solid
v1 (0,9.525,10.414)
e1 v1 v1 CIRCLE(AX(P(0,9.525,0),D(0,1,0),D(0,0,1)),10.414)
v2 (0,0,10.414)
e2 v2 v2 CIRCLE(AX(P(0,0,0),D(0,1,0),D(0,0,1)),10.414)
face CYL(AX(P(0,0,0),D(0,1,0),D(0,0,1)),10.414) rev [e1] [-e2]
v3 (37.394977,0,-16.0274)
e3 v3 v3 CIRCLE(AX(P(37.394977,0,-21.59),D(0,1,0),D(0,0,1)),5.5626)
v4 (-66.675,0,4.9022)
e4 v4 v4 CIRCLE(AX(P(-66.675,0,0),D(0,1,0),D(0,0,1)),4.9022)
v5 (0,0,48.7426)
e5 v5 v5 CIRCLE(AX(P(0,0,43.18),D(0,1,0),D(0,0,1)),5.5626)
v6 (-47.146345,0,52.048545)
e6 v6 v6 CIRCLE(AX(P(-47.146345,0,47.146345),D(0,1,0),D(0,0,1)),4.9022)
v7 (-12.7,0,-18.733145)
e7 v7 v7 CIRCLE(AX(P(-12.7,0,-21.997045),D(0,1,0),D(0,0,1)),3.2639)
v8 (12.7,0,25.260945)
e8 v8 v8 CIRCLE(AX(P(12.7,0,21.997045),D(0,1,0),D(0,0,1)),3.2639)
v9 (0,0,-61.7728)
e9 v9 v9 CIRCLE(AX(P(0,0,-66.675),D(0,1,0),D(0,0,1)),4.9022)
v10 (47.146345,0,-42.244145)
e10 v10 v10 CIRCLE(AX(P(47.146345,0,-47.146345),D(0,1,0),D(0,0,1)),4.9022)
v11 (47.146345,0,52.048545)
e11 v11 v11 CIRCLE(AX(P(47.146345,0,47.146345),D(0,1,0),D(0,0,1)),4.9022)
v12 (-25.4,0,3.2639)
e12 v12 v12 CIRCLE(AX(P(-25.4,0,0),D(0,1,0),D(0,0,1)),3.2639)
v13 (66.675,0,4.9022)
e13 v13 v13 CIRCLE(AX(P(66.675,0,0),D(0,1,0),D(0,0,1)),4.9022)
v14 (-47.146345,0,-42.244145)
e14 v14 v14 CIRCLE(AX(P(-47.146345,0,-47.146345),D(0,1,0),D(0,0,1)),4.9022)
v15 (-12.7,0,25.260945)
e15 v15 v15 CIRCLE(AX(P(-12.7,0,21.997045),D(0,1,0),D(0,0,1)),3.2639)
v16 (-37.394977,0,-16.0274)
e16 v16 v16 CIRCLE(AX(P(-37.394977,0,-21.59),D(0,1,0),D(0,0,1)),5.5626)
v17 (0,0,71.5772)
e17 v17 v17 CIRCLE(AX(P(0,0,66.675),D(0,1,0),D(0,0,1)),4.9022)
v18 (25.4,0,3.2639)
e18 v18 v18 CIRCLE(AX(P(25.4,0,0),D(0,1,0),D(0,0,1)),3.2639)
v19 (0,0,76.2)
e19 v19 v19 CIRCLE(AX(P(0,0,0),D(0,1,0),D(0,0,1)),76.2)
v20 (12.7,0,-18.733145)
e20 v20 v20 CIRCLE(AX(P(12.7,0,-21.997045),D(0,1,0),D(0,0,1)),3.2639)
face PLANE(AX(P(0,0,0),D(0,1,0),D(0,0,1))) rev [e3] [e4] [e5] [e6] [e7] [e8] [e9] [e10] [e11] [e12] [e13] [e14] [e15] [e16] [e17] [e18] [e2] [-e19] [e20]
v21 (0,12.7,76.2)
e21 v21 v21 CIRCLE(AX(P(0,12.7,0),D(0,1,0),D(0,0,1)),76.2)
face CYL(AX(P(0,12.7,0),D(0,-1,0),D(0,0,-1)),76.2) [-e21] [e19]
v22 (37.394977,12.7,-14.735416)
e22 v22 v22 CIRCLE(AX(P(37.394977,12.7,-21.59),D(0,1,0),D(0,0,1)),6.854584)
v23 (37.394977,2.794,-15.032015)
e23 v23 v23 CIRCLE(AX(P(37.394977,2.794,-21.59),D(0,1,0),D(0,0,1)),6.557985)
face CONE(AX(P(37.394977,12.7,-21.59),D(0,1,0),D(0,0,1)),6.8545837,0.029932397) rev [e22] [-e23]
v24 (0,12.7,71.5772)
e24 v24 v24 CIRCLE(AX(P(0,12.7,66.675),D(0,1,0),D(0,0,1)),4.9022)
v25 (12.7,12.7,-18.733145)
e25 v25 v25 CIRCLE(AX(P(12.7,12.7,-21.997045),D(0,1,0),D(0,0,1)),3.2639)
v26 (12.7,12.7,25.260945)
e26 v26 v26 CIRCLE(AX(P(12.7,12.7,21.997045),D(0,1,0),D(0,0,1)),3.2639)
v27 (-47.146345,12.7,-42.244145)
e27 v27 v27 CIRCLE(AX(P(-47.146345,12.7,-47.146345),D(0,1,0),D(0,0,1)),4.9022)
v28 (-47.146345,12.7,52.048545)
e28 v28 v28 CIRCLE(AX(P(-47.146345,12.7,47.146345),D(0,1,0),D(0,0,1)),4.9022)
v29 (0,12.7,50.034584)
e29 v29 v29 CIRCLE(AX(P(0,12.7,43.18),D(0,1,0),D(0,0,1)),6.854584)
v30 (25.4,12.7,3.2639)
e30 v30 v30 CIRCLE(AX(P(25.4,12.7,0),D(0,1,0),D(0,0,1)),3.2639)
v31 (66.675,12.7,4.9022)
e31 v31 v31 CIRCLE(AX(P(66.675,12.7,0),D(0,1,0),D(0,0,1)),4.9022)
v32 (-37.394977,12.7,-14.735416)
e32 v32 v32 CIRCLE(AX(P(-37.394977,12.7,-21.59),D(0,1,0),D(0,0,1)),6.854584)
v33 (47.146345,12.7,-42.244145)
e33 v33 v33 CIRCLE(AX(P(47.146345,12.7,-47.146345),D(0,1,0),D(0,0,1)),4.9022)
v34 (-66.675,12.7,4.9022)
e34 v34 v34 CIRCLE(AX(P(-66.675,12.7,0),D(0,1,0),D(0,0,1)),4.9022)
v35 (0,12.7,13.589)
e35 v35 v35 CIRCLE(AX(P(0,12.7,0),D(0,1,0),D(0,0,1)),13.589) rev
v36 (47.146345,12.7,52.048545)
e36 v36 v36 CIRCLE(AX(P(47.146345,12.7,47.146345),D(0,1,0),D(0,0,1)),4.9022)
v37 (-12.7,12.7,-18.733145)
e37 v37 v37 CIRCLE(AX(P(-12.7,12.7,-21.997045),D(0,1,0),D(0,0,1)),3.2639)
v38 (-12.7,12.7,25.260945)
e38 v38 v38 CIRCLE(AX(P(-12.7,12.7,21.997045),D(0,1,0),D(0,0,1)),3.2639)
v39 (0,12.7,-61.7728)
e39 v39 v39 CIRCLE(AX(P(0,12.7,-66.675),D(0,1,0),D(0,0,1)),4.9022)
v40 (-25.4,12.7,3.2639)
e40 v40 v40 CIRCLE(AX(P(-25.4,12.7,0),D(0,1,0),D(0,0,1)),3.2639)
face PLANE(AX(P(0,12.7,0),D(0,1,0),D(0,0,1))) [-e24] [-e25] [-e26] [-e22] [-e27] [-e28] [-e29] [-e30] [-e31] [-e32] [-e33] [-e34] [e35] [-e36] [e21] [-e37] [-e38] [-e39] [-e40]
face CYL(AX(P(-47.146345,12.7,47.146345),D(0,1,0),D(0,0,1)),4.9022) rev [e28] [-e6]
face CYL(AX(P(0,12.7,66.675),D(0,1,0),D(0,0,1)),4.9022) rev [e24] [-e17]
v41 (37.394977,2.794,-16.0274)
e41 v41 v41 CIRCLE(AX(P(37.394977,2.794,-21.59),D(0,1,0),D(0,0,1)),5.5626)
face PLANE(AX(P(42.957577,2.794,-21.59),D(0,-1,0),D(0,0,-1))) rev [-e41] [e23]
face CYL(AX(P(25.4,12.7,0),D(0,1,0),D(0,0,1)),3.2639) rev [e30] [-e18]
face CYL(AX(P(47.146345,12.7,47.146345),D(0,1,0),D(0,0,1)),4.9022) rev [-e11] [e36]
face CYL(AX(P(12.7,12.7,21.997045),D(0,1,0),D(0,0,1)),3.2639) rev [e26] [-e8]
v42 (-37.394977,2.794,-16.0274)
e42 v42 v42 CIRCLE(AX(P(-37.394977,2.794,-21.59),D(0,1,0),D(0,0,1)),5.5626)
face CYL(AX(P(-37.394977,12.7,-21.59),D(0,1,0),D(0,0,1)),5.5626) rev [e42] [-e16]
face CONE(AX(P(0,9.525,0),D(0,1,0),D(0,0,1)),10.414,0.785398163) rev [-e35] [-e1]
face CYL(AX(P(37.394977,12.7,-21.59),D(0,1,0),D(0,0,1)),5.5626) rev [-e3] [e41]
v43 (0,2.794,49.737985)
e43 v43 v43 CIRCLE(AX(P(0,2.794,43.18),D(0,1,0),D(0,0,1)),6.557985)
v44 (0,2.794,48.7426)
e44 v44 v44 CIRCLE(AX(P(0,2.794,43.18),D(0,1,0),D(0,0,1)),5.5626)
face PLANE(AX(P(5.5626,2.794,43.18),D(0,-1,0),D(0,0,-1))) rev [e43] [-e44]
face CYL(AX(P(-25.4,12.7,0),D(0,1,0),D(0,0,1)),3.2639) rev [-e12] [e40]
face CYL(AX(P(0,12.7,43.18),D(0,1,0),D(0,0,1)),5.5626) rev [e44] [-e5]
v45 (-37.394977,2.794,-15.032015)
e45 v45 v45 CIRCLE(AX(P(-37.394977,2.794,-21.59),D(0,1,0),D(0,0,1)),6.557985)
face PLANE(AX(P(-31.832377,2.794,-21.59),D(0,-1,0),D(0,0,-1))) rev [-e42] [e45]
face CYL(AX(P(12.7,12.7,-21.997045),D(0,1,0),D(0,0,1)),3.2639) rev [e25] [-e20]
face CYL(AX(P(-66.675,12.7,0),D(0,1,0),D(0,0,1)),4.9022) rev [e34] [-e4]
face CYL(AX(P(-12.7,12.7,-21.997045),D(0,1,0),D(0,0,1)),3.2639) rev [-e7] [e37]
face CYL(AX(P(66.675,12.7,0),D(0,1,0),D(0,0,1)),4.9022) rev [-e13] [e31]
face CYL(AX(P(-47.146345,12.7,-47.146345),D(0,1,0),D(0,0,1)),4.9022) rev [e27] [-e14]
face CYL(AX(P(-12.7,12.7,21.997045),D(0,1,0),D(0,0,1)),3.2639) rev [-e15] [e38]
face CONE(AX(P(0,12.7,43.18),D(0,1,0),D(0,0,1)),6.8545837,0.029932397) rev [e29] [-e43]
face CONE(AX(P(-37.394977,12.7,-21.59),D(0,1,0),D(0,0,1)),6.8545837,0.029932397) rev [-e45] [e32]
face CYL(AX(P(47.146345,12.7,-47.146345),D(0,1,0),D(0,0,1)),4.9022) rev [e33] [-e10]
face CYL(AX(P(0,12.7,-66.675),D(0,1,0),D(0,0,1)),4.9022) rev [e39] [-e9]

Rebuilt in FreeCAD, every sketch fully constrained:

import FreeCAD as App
import Part
import Sketcher
from FreeCAD import Vector
Q = App.Units.Quantity


def edges_at(feature, points):
    """Names of the edges that pass closest to the given points."""
    edges = feature.Shape.Edges
    near = lambda p: min(range(len(edges)), key=lambda i: edges[i].distToShape(Part.Vertex(*p))[0])
    return sorted({f"Edge{near(p) + 1}" for p in points})

doc = App.newDocument("Part")
body = doc.addObject("PartDesign::Body", "Body")

# Sketch on XZ plane
sketch1 = body.newObject("Sketcher::SketchObject", "Sketch")
sketch1.AttachmentSupport = (doc.getObject("XZ_Plane"), [""])
sketch1.MapMode = "FlatFace"
sketch1.addGeometry(Part.Circle(Vector(0, 0, 0), Vector(0, 0, 1), 76), False)
sketch1.addConstraint(Sketcher.Constraint("Coincident", 0, 3, -1, 1))
sketch1.addConstraint(Sketcher.Constraint("Diameter", 0, Q("6 in")))
pad1 = body.newObject("PartDesign::Pad", "Pad")
pad1.Profile = sketch1
pad1.Length = Q("0.5 in")
pad1.Reversed = True

# Sketch on XZ plane
sketch2 = body.newObject("Sketcher::SketchObject", "Sketch001")
sketch2.AttachmentSupport = (doc.getObject("XZ_Plane"), [""])
sketch2.MapMode = "FlatFace"
sketch2.AttachmentOffset = App.Placement(Vector(0, 0, -0.5 * 25.4), App.Rotation())
sketch2.addGeometry(Part.Circle(Vector(47.1, 47.1, 0), Vector(0, 0, 1), 4.9), False)
sketch2.addGeometry(Part.Circle(Vector(66.7, 0, 0), Vector(0, 0, 1), 4.9), False)
sketch2.addGeometry(Part.Circle(Vector(47.1, -47.1, 0), Vector(0, 0, 1), 4.9), False)
sketch2.addGeometry(Part.Circle(Vector(0, -66.7, 0), Vector(0, 0, 1), 4.9), False)
sketch2.addGeometry(Part.Circle(Vector(-47.1, -47.1, 0), Vector(0, 0, 1), 4.9), False)
sketch2.addGeometry(Part.Circle(Vector(-66.7, 0, 0), Vector(0, 0, 1), 4.9), False)
sketch2.addGeometry(Part.Circle(Vector(-47.1, 47.1, 0), Vector(0, 0, 1), 4.9), False)
sketch2.addGeometry(Part.Circle(Vector(0, 66.7, 0), Vector(0, 0, 1), 4.9), False)
sketch2.addConstraint(Sketcher.Constraint("Equal", 0, 1))
sketch2.addConstraint(Sketcher.Constraint("Equal", 1, 2))
sketch2.addConstraint(Sketcher.Constraint("Equal", 2, 3))
sketch2.addConstraint(Sketcher.Constraint("Equal", 3, 4))
sketch2.addConstraint(Sketcher.Constraint("Equal", 4, 5))
sketch2.addConstraint(Sketcher.Constraint("Equal", 5, 6))
sketch2.addConstraint(Sketcher.Constraint("Equal", 6, 7))
sketch2.addConstraint(Sketcher.Constraint("Symmetric", 0, 3, 4, 3, -1, 1))
sketch2.addConstraint(Sketcher.Constraint("Symmetric", 1, 3, 5, 3, -1, 1))
sketch2.addConstraint(Sketcher.Constraint("Symmetric", 2, 3, 6, 3, -1, 1))
sketch2.addConstraint(Sketcher.Constraint("Symmetric", 3, 3, 7, 3, -1, 1))
sketch2.addConstraint(Sketcher.Constraint("Symmetric", 2, 3, 4, 3, -2))
sketch2.addConstraint(Sketcher.Constraint("PointOnObject", 1, 3, -1))
sketch2.addConstraint(Sketcher.Constraint("PointOnObject", 3, 3, -2))
sketch2.addConstraint(Sketcher.Constraint("Diameter", 0, Q("0.386 in")))
sketch2.addConstraint(Sketcher.Constraint("DistanceX", 5, 3, 1, 3, Q("5.25 in")))
sketch2.addConstraint(Sketcher.Constraint("DistanceY", 3, 3, -1, 1, Q("2.625 in")))
sketch2.addConstraint(Sketcher.Constraint("DistanceY", 2, 3, 0, 3, Q("94.292689 mm")))
sketch2.addConstraint(Sketcher.Constraint("DistanceX", 4, 3, 2, 3, Q("94.292689 mm")))
doc.recompute()
hole = body.newObject("PartDesign::Hole", "Hole")
hole.Profile = sketch2
hole.ThreadType = "None"
hole.Diameter = Q("0.386 in")
hole.DepthType = "ThroughAll"
hole.Reversed = True

# Sketch on XZ plane
sketch3 = body.newObject("Sketcher::SketchObject", "Sketch002")
sketch3.AttachmentSupport = (doc.getObject("XZ_Plane"), [""])
sketch3.MapMode = "FlatFace"
sketch3.AttachmentOffset = App.Placement(Vector(0, 0, -0.5 * 25.4), App.Rotation())
sketch3.addGeometry(Part.Circle(Vector(12.7, 22, 0), Vector(0, 0, 1), 3.3), False)
sketch3.addGeometry(Part.Circle(Vector(25.4, 0, 0), Vector(0, 0, 1), 3.3), False)
sketch3.addGeometry(Part.Circle(Vector(12.7, -22, 0), Vector(0, 0, 1), 3.3), False)
sketch3.addGeometry(Part.Circle(Vector(-12.7, -22, 0), Vector(0, 0, 1), 3.3), False)
sketch3.addGeometry(Part.Circle(Vector(-25.4, 0, 0), Vector(0, 0, 1), 3.3), False)
sketch3.addGeometry(Part.Circle(Vector(-12.7, 22, 0), Vector(0, 0, 1), 3.3), False)
sketch3.addConstraint(Sketcher.Constraint("Equal", 0, 1))
sketch3.addConstraint(Sketcher.Constraint("Equal", 1, 2))
sketch3.addConstraint(Sketcher.Constraint("Equal", 2, 3))
sketch3.addConstraint(Sketcher.Constraint("Equal", 3, 4))
sketch3.addConstraint(Sketcher.Constraint("Equal", 4, 5))
sketch3.addConstraint(Sketcher.Constraint("Symmetric", 0, 3, 3, 3, -1, 1))
sketch3.addConstraint(Sketcher.Constraint("Symmetric", 1, 3, 4, 3, -1, 1))
sketch3.addConstraint(Sketcher.Constraint("Symmetric", 2, 3, 5, 3, -1, 1))
sketch3.addConstraint(Sketcher.Constraint("Symmetric", 2, 3, 3, 3, -2))
sketch3.addConstraint(Sketcher.Constraint("PointOnObject", 1, 3, -1))
sketch3.addConstraint(Sketcher.Constraint("Diameter", 0, Q("0.257 in")))
sketch3.addConstraint(Sketcher.Constraint("DistanceX", -1, 1, 1, 3, Q("1 in")))
sketch3.addConstraint(Sketcher.Constraint("DistanceX", 3, 3, 2, 3, Q("1 in")))
sketch3.addConstraint(Sketcher.Constraint("DistanceY", 2, 3, 0, 3, Q("43.994091 mm")))
doc.recompute()
hole2 = body.newObject("PartDesign::Hole", "Hole001")
hole2.Profile = sketch3
hole2.ThreadType = "None"
hole2.Diameter = Q("0.257 in")
hole2.DepthType = "ThroughAll"
hole2.Reversed = True

# Sketch on YZ plane
sketch4 = body.newObject("Sketcher::SketchObject", "Sketch003")
sketch4.AttachmentSupport = (doc.getObject("YZ_Plane"), [""])
sketch4.MapMode = "FlatFace"
sketch4.AttachmentOffset = App.Placement(Vector(0, 0, -37.394977), App.Rotation())
sketch4.addGeometry(Part.LineSegment(Vector(0, -21.6, 0), Vector(12.7, -21.6, 0)), False)
sketch4.addGeometry(Part.LineSegment(Vector(12.7, -21.6, 0), Vector(12.7, -14.7, 0)), False)
sketch4.addGeometry(Part.LineSegment(Vector(12.7, -14.7, 0), Vector(2.8, -15, 0)), False)
sketch4.addGeometry(Part.LineSegment(Vector(2.8, -15, 0), Vector(2.8, -16, 0)), False)
sketch4.addGeometry(Part.LineSegment(Vector(2.8, -16, 0), Vector(0, -16, 0)), False)
sketch4.addGeometry(Part.LineSegment(Vector(0, -16, 0), Vector(0, -21.6, 0)), False)
sketch4.addGeometry(Part.LineSegment(Vector(12.7, -21.6, 0), Vector(0, -21.6, 0)), True)  # axis
sketch4.addConstraint(Sketcher.Constraint("Coincident", 0, 2, 1, 1))
sketch4.addConstraint(Sketcher.Constraint("Coincident", 1, 2, 2, 1))
sketch4.addConstraint(Sketcher.Constraint("Coincident", 2, 2, 3, 1))
sketch4.addConstraint(Sketcher.Constraint("Coincident", 3, 2, 4, 1))
sketch4.addConstraint(Sketcher.Constraint("Coincident", 4, 2, 5, 1))
sketch4.addConstraint(Sketcher.Constraint("Coincident", 5, 2, 0, 1))
sketch4.addConstraint(Sketcher.Constraint("Horizontal", 0))
sketch4.addConstraint(Sketcher.Constraint("Vertical", 1))
sketch4.addConstraint(Sketcher.Constraint("Vertical", 3))
sketch4.addConstraint(Sketcher.Constraint("Horizontal", 4))
sketch4.addConstraint(Sketcher.Constraint("Vertical", 5))
sketch4.addConstraint(Sketcher.Constraint("Horizontal", 6))
sketch4.addConstraint(Sketcher.Constraint("Coincident", 6, 1, 0, 2))
sketch4.addConstraint(Sketcher.Constraint("PointOnObject", 4, 2, -2))
sketch4.addConstraint(Sketcher.Constraint("PointOnObject", 6, 2, -2))
sketch4.addConstraint(Sketcher.Constraint("DistanceX", 0, 1, 0, 2, Q("0.5 in")))
sketch4.addConstraint(Sketcher.Constraint("DistanceX", 4, 2, 4, 1, Q("0.11 in")))
sketch4.addConstraint(Sketcher.Constraint("DistanceY", 5, 2, 5, 1, Q("0.219 in")))
sketch4.addConstraint(Sketcher.Constraint("DistanceY", 0, 2, -1, 1, Q("0.85 in")))
sketch4.addConstraint(Sketcher.Constraint("DistanceY", 2, 2, 1, 2, Q("0.296599 mm")))
sketch4.addConstraint(Sketcher.Constraint("DistanceY", 1, 1, 1, 2, Q("6.854584 mm")))
groove = body.newObject("PartDesign::Groove", "Groove")
groove.Profile = sketch4
groove.ReferenceAxis = (sketch4, ["Axis0"])
groove.Angle = 360
doc.recompute()

datumline = body.newObject("PartDesign::Line", "DatumLine")
datumline.Placement = App.Placement(Vector(0, 0, 0), App.Rotation(Vector(0, 0, 1), Vector(0.5, 0, 0.866025404)))
linearpattern = body.newObject("PartDesign::LinearPattern", "LinearPattern")
linearpattern.Originals = [groove]
linearpattern.Direction = (datumline, [""])
linearpattern.Mode = "offset"
linearpattern.Offset = 74.789954
linearpattern.Occurrences = 2
body.Tip = linearpattern
doc.recompute()

linearpattern2 = body.newObject("PartDesign::LinearPattern", "LinearPattern001")
linearpattern2.Originals = [groove]
linearpattern2.Direction = (doc.getObject("X_Axis"), [""])
linearpattern2.Mode = "offset"
linearpattern2.Offset = 74.789954
linearpattern2.Occurrences = 2
body.Tip = linearpattern2

# Sketch on XZ plane
sketch5 = body.newObject("Sketcher::SketchObject", "Sketch004")
sketch5.AttachmentSupport = (doc.getObject("XZ_Plane"), [""])
sketch5.MapMode = "FlatFace"
sketch5.AttachmentOffset = App.Placement(Vector(0, 0, -0.5 * 25.4), App.Rotation())
sketch5.addGeometry(Part.Circle(Vector(0, 0, 0), Vector(0, 0, 1), 10), False)
sketch5.addConstraint(Sketcher.Constraint("Coincident", 0, 3, -1, 1))
sketch5.addConstraint(Sketcher.Constraint("Diameter", 0, Q("0.82 in")))
pocket1 = body.newObject("PartDesign::Pocket", "Pocket")
pocket1.Profile = sketch5
pocket1.Type = "ThroughAll"
pocket1.Reversed = True
doc.recompute()

chamfer = body.newObject("PartDesign::Chamfer", "Chamfer")
chamfer.Base = (pocket1, edges_at(pocket1, [(0, 12.7, -10.414)]))
chamfer.Size = Q("0.125 in")

doc.recompute()
